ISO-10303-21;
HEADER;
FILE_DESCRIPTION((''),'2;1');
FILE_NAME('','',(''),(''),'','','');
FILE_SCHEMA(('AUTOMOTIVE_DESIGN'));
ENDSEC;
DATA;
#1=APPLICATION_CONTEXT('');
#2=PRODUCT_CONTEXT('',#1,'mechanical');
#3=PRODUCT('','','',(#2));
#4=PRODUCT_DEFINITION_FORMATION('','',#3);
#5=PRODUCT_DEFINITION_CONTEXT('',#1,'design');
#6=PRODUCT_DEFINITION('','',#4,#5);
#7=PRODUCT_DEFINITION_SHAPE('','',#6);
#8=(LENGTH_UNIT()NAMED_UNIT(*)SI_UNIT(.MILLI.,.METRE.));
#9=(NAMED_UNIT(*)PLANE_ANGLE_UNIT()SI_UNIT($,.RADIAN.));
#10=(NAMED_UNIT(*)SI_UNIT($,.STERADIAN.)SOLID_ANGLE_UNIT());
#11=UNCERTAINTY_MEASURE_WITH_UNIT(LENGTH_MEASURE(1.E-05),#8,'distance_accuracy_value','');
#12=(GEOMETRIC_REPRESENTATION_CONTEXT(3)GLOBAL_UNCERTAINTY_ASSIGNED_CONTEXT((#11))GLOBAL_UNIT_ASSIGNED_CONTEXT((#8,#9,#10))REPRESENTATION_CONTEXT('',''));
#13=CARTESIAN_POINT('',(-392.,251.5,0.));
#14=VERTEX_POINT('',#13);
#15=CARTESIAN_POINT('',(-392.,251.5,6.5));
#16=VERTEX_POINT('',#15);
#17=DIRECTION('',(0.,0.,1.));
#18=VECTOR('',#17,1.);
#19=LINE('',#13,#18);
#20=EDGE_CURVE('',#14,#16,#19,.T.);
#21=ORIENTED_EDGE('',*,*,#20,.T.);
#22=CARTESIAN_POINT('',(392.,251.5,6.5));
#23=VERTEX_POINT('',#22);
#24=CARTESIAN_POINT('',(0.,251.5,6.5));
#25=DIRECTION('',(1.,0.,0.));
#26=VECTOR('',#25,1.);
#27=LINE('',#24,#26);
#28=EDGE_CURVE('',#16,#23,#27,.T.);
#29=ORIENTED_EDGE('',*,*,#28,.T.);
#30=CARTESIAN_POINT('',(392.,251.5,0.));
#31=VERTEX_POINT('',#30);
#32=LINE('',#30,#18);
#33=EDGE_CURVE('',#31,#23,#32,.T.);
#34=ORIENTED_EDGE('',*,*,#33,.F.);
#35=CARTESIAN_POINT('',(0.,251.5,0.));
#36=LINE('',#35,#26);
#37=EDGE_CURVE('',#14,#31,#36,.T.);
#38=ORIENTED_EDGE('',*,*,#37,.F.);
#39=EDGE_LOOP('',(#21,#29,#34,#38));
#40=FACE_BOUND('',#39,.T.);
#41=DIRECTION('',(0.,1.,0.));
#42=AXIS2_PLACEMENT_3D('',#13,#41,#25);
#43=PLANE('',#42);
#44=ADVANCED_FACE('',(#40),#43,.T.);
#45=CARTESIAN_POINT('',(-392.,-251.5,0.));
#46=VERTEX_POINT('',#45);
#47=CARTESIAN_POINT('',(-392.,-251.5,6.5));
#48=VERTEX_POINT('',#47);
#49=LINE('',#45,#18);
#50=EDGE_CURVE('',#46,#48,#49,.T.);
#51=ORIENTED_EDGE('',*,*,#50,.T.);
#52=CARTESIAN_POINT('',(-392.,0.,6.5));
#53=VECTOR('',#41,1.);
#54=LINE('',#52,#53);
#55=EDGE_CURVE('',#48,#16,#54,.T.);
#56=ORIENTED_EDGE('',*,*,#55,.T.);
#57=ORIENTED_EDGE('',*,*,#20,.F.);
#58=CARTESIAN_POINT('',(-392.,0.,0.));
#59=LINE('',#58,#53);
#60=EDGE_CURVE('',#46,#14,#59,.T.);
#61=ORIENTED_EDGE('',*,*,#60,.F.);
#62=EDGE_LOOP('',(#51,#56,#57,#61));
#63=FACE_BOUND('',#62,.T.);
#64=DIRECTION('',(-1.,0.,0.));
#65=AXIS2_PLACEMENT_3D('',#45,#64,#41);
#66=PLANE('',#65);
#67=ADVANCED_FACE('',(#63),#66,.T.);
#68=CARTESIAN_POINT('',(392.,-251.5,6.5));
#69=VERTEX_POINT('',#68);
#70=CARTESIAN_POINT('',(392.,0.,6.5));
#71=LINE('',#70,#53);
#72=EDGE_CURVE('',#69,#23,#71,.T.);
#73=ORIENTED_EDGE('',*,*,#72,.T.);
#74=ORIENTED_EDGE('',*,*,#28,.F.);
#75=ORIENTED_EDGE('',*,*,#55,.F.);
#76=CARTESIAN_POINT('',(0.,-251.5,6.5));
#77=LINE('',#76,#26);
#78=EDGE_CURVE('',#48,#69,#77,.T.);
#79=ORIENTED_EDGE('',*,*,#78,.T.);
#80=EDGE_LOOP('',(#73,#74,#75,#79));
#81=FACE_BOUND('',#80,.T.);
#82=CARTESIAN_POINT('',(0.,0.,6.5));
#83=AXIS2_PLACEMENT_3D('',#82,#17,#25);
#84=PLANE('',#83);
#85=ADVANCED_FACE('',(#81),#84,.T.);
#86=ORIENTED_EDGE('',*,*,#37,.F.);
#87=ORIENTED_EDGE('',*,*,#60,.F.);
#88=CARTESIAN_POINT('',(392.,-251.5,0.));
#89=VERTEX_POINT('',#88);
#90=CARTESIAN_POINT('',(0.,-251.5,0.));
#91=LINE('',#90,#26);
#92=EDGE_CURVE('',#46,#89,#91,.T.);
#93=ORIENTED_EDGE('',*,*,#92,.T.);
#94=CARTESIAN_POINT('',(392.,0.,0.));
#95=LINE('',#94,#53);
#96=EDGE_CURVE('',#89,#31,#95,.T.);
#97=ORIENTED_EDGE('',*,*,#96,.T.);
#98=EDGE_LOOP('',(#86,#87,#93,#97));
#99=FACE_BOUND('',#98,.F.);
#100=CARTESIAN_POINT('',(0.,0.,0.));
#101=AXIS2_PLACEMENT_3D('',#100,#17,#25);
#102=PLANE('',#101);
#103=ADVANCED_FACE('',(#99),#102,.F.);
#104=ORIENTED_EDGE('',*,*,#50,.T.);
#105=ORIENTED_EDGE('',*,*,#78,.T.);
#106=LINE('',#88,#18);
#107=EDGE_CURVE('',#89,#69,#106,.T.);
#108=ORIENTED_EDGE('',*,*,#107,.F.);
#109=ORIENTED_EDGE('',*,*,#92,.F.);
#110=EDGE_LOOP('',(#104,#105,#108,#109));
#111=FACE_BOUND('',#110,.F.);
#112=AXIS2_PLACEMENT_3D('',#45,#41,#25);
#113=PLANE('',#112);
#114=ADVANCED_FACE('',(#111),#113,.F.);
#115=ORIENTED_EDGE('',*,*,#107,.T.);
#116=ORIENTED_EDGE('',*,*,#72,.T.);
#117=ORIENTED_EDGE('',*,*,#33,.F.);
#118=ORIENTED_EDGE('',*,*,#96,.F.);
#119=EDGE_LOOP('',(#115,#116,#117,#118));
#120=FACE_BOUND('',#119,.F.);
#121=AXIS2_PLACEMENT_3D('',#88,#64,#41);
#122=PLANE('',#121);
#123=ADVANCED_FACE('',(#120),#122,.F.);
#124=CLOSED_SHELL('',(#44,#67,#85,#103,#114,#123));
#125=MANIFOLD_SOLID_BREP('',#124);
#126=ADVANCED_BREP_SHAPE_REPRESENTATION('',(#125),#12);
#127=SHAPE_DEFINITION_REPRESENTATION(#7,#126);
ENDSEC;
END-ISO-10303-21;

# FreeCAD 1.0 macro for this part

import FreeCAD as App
import Part
import Sketcher
Q = App.Units.Quantity


def add_polygon(sketch, points):
    """Adds a closed chain of lines whose ends are joined by coincident constraints."""
    first, n = sketch.GeometryCount, len(points)
    for a, b in zip(points, points[1:] + points[:1]):
        sketch.addGeometry(Part.LineSegment(App.Vector(*a, 0), App.Vector(*b, 0)), False)
    for i in range(n):
        sketch.addConstraint(Sketcher.Constraint("Coincident", first + i, 2, first + (i + 1) % n, 1))

doc = App.newDocument("Part")
body = doc.addObject("PartDesign::Body", "Body")

sketch1 = body.newObject("Sketcher::SketchObject", "Sketch")
sketch1.AttachmentSupport = (doc.getObject("XY_Plane"), [""])
sketch1.MapMode = "FlatFace"
add_polygon(sketch1, [(-392, 252), (-392, -252), (392, -252), (392, 252)])
sketch1.addConstraint([
    Sketcher.Constraint("Vertical", 0),
    Sketcher.Constraint("Horizontal", 1),
    Sketcher.Constraint("Vertical", 2),
    Sketcher.Constraint("Horizontal", 3),
    Sketcher.Constraint("Symmetric", 0, 2, 2, 2, -1, 1),
    Sketcher.Constraint("DistanceX", 1, 1, 1, 2, Q("784 mm")),
    Sketcher.Constraint("DistanceY", 0, 2, 0, 1, Q("503 mm")),
])
pad1 = body.newObject("PartDesign::Pad", "Pad")
pad1.Profile = sketch1
pad1.Length = 6.5

doc.recompute()
